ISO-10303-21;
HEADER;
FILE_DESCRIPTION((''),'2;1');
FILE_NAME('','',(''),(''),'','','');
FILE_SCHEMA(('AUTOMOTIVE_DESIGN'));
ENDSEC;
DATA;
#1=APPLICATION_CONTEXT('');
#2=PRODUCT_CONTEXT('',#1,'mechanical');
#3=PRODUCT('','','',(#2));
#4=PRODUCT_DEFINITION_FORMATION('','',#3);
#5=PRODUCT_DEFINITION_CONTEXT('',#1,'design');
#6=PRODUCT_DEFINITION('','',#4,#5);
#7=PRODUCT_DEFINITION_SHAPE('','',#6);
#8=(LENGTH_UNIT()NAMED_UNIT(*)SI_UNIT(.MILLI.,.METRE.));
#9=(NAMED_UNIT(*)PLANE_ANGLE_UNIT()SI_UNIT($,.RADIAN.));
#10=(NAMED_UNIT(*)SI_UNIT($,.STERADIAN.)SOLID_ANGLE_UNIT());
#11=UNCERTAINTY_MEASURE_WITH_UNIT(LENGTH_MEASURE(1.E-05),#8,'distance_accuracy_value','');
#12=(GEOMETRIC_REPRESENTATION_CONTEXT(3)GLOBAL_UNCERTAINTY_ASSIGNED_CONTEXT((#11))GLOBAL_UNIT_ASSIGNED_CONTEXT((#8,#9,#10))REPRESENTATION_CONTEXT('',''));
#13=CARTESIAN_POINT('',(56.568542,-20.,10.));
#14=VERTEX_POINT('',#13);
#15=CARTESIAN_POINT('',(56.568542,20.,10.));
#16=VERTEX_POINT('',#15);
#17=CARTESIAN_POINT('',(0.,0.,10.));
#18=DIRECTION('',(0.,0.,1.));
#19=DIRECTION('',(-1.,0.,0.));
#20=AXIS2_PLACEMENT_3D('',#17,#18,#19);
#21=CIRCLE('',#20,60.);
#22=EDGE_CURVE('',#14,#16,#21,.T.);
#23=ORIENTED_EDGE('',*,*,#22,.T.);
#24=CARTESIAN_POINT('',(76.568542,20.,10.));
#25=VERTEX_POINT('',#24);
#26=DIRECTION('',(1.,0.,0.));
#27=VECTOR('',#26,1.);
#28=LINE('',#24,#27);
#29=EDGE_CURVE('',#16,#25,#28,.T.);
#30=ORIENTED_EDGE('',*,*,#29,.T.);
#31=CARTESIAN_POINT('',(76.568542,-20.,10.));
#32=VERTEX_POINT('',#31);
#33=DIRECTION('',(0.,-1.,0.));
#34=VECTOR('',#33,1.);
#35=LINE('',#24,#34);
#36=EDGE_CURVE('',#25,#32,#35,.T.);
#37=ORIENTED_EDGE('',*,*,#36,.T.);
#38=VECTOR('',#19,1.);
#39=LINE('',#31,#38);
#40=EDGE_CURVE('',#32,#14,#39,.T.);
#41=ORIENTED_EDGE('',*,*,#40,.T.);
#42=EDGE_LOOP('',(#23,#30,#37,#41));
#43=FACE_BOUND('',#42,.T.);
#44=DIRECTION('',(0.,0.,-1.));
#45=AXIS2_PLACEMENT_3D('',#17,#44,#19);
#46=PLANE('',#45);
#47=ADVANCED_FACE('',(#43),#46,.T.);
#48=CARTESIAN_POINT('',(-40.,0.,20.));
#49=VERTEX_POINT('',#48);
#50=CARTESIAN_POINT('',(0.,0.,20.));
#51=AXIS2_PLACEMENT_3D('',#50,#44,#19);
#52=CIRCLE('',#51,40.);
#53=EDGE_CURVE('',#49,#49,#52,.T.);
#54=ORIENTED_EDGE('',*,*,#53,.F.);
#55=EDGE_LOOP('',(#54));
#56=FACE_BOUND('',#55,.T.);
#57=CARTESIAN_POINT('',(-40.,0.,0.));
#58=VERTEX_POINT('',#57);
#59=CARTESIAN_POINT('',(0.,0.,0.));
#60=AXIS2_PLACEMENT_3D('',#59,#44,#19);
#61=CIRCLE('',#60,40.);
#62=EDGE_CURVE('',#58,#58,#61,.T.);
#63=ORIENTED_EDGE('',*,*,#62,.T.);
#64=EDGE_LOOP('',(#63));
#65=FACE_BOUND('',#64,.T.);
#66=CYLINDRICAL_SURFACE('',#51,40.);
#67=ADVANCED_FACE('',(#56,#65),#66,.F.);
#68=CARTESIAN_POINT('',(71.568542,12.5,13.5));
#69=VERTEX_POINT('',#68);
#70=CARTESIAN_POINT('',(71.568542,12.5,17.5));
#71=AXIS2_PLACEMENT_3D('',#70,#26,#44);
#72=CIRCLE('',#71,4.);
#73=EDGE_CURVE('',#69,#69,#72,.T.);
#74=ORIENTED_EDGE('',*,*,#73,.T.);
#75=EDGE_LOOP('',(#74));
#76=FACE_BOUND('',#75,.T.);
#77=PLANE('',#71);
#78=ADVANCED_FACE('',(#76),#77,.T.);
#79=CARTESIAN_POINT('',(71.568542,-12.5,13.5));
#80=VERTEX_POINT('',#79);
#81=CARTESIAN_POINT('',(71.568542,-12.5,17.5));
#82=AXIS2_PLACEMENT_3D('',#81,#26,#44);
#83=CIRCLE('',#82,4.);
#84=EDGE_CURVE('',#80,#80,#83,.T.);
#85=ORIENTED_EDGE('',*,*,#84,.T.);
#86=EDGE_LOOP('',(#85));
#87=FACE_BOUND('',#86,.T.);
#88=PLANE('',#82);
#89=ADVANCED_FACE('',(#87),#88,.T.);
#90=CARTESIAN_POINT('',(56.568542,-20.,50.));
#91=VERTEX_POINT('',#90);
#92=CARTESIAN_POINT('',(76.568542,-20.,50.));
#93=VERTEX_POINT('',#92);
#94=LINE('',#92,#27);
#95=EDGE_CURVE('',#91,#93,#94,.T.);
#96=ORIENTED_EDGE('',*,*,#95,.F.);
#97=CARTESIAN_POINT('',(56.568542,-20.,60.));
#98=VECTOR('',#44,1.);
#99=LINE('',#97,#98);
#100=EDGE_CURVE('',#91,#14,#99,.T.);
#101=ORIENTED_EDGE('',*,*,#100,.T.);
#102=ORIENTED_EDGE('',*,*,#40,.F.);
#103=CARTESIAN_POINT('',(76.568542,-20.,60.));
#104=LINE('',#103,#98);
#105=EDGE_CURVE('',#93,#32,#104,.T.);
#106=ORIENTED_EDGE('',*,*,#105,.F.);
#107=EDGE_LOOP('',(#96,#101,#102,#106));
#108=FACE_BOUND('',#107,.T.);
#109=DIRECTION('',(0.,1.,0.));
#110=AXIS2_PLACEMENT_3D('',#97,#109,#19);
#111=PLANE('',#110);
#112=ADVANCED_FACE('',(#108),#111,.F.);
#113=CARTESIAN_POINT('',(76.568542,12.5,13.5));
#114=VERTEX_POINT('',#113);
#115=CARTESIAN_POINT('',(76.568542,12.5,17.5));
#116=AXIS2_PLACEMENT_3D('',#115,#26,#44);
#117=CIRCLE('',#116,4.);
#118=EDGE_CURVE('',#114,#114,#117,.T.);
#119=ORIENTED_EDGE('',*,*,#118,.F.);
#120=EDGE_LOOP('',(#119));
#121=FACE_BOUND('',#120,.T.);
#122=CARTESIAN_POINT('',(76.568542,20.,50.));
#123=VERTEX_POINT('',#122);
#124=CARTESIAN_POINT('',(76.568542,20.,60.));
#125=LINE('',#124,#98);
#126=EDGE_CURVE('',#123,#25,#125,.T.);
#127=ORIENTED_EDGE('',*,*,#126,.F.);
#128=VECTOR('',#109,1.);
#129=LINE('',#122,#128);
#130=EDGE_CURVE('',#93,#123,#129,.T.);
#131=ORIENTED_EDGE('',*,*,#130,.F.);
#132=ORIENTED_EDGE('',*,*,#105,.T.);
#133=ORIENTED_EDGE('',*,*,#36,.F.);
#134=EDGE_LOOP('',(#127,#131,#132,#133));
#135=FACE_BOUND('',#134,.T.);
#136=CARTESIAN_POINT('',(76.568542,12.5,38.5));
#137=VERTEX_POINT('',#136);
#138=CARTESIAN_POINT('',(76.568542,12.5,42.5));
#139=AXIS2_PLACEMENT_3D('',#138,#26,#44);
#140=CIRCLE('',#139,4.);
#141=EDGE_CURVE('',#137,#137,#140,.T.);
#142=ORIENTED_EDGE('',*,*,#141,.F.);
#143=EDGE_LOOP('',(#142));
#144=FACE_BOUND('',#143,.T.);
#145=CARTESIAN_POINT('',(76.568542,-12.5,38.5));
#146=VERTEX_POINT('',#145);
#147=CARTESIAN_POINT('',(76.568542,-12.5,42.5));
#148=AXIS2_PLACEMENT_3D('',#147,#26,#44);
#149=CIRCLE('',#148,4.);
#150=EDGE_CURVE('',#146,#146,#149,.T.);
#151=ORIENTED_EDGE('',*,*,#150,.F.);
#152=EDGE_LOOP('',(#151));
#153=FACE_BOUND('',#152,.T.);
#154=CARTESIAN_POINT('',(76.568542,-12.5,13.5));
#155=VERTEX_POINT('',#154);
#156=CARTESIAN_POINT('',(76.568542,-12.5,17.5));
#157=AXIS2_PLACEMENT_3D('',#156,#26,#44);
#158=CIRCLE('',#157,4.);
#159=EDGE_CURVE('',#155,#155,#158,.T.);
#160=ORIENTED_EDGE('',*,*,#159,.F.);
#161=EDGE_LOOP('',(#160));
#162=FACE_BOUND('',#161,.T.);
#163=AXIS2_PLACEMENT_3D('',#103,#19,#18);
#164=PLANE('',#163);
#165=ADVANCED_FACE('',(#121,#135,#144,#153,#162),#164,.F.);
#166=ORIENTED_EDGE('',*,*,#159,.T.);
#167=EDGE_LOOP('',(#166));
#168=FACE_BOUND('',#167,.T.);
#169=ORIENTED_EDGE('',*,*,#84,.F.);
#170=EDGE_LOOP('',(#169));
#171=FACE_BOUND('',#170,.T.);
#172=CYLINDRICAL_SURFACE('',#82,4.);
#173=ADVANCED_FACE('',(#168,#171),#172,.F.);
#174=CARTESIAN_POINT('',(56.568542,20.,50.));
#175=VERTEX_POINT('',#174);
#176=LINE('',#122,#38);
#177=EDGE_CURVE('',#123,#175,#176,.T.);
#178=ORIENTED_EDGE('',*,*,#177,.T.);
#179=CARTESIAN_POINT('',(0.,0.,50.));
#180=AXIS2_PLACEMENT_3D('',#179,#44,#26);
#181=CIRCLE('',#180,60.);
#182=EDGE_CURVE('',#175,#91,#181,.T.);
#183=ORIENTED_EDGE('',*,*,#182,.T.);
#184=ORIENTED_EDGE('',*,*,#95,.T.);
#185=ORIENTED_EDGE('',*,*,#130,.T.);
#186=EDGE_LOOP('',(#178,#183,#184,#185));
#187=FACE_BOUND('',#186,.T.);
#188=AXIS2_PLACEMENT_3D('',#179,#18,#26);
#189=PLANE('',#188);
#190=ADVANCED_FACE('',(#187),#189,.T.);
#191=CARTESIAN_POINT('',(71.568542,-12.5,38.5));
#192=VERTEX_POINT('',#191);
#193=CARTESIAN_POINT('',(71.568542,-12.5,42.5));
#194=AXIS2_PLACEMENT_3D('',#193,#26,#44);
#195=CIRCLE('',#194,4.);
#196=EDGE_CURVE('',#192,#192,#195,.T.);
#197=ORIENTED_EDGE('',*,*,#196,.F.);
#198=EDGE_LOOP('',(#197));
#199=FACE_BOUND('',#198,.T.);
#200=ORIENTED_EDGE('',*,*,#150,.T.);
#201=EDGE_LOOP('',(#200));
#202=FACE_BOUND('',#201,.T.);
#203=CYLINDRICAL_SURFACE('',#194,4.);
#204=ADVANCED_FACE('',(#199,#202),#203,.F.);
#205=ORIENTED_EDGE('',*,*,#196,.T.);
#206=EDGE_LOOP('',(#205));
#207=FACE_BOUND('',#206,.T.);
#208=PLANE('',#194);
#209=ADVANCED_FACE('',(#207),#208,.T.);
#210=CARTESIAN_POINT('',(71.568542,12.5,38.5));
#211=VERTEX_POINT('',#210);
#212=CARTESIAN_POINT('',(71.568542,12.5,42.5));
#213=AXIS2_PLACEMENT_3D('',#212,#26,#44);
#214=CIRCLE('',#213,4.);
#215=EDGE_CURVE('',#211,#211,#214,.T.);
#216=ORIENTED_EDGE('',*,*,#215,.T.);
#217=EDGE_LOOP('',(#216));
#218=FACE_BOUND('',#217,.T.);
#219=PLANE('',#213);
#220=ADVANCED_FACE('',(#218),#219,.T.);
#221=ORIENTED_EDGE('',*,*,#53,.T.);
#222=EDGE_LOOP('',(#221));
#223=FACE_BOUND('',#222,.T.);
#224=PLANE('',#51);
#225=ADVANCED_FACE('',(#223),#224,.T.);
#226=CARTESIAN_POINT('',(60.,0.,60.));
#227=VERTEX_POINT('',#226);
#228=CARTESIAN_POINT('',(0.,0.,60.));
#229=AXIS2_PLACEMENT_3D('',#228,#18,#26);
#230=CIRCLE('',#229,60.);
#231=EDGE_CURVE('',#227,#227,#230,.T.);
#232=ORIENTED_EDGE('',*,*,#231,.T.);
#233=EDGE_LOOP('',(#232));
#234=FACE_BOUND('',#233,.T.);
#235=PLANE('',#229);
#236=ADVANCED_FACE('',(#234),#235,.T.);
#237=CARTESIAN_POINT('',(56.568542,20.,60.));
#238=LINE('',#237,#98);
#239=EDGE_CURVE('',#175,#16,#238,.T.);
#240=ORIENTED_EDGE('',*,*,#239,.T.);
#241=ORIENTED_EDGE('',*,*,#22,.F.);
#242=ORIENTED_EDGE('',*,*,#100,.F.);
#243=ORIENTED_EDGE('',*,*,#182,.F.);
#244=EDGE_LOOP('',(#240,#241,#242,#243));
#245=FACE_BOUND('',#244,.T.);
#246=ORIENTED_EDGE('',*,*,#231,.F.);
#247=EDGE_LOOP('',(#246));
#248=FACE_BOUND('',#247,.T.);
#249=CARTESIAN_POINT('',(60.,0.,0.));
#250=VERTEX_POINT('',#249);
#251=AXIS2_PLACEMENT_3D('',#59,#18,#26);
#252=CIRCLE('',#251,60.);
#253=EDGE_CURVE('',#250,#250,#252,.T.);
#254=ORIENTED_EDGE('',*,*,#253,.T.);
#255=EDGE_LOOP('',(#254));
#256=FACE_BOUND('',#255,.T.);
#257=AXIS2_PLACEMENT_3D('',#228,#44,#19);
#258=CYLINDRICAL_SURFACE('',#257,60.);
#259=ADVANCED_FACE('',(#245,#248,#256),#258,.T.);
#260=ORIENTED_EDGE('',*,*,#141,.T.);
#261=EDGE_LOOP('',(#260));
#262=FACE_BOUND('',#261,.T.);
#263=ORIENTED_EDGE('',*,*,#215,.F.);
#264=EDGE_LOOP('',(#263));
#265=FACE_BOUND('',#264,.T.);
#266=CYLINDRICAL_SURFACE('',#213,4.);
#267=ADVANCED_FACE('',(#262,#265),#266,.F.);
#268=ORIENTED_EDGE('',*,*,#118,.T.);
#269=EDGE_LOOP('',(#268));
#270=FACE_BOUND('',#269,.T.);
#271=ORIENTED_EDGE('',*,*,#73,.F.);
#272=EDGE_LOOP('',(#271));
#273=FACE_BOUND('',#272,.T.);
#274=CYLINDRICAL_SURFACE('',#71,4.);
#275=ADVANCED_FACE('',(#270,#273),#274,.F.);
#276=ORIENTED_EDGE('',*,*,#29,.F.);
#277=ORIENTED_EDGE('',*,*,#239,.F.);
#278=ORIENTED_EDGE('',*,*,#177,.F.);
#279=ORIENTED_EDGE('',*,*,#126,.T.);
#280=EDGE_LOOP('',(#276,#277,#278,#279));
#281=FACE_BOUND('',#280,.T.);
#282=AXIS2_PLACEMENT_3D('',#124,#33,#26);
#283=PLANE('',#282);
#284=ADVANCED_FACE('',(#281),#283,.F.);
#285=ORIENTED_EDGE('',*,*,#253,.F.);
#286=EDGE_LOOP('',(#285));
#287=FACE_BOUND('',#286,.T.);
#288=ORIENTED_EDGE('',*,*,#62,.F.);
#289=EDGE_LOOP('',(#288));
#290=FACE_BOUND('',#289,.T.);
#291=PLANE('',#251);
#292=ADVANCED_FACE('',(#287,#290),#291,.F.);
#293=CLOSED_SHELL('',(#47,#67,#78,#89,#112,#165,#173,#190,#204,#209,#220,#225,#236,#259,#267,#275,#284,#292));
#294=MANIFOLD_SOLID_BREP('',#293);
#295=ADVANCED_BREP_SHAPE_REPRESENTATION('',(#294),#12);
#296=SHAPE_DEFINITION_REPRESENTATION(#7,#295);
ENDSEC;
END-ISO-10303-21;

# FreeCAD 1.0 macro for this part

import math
import FreeCAD as App
import Part
import Sketcher
from FreeCAD import Vector
Q = App.Units.Quantity

doc = App.newDocument("Part")
body = doc.addObject("PartDesign::Body", "Body")

# Sketch on XY plane
sketch1 = body.newObject("Sketcher::SketchObject", "Sketch")
sketch1.AttachmentSupport = (doc.getObject("XY_Plane"), [""])
sketch1.MapMode = "FlatFace"
sketch1.addGeometry([
    Part.LineSegment(Vector(57, -20, 0), Vector(77, -20, 0)),
    Part.LineSegment(Vector(77, -20, 0), Vector(77, 20, 0)),
    Part.LineSegment(Vector(77, 20, 0), Vector(57, 20, 0)),
    Part.ArcOfCircle(Part.Circle(Vector(0, 0, 0), Vector(0, 0, 1), 60), math.radians(19), math.radians(341)),
], False)
sketch1.addConstraint([
    Sketcher.Constraint("Coincident", 0, 2, 1, 1),
    Sketcher.Constraint("Coincident", 1, 2, 2, 1),
    Sketcher.Constraint("Coincident", 2, 2, 3, 1),
    Sketcher.Constraint("Coincident", 3, 2, 0, 1),
    Sketcher.Constraint("Horizontal", 0),
    Sketcher.Constraint("Vertical", 1),
    Sketcher.Constraint("Horizontal", 2),
    Sketcher.Constraint("Coincident", 3, 3, -1, 1),
    Sketcher.Constraint("Vertical", 2, 2, 3, 2),
    Sketcher.Constraint("Radius", 3, Q("60 mm")),
    Sketcher.Constraint("DistanceX", 0, 1, 0, 2, Q("20 mm")),
    Sketcher.Constraint("DistanceY", 1, 1, 1, 2, Q("40 mm")),
])
pad1 = body.newObject("PartDesign::Pad", "Pad")
pad1.Profile = sketch1
pad1.Length = 60

# Sketch on XY plane
sketch2 = body.newObject("Sketcher::SketchObject", "Sketch001")
sketch2.AttachmentSupport = (doc.getObject("XY_Plane"), [""])
sketch2.MapMode = "FlatFace"
sketch2.addGeometry([
    Part.LineSegment(Vector(77, 20, 0), Vector(77, -20, 0)),
    Part.LineSegment(Vector(77, -20, 0), Vector(57, -20, 0)),
    Part.ArcOfCircle(Part.Circle(Vector(0, 0, 0), Vector(0, 0, 1), 60), math.radians(-19), math.radians(19)),
    Part.LineSegment(Vector(57, 20, 0), Vector(77, 20, 0)),
], False)
sketch2.addConstraint([
    Sketcher.Constraint("Coincident", 0, 2, 1, 1),
    Sketcher.Constraint("Coincident", 1, 2, 2, 1),
    Sketcher.Constraint("Coincident", 2, 2, 3, 1),
    Sketcher.Constraint("Coincident", 3, 2, 0, 1),
    Sketcher.Constraint("Vertical", 0),
    Sketcher.Constraint("Horizontal", 1),
    Sketcher.Constraint("Horizontal", 3),
    Sketcher.Constraint("Coincident", 2, 3, -1, 1),
    Sketcher.Constraint("Vertical", 1, 2, 2, 2),
    Sketcher.Constraint("Radius", 2, Q("60 mm")),
    Sketcher.Constraint("DistanceX", 1, 2, 1, 1, Q("20 mm")),
    Sketcher.Constraint("DistanceY", 0, 2, 0, 1, Q("40 mm")),
])
pocket1 = body.newObject("PartDesign::Pocket", "Pocket")
pocket1.Profile = sketch2
pocket1.Length = 10
pocket1.Reversed = True

# Sketch on XY plane
sketch3 = body.newObject("Sketcher::SketchObject", "Sketch002")
sketch3.AttachmentSupport = (doc.getObject("XY_Plane"), [""])
sketch3.MapMode = "FlatFace"
sketch3.AttachmentOffset = App.Placement(Vector(0, 0, 60), App.Rotation())
sketch3.addGeometry([
    Part.LineSegment(Vector(77, -20, 0), Vector(77, 20, 0)),
    Part.LineSegment(Vector(77, 20, 0), Vector(57, 20, 0)),
    Part.ArcOfCircle(Part.Circle(Vector(0, 0, 0), Vector(0, 0, 1), 60), math.radians(-19), math.radians(19)),
    Part.LineSegment(Vector(57, -20, 0), Vector(77, -20, 0)),
], False)
sketch3.addConstraint([
    Sketcher.Constraint("Coincident", 0, 2, 1, 1),
    Sketcher.Constraint("Coincident", 1, 2, 2, 2),
    Sketcher.Constraint("Coincident", 2, 1, 3, 1),
    Sketcher.Constraint("Coincident", 3, 2, 0, 1),
    Sketcher.Constraint("Vertical", 0),
    Sketcher.Constraint("Horizontal", 1),
    Sketcher.Constraint("Horizontal", 3),
    Sketcher.Constraint("Coincident", 2, 3, -1, 1),
    Sketcher.Constraint("Vertical", 1, 2, 2, 1),
    Sketcher.Constraint("Radius", 2, Q("60 mm")),
    Sketcher.Constraint("DistanceX", 1, 2, 1, 1, Q("20 mm")),
    Sketcher.Constraint("DistanceY", 0, 1, 0, 2, Q("40 mm")),
])
pocket2 = body.newObject("PartDesign::Pocket", "Pocket001")
pocket2.Profile = sketch3
pocket2.Length = 10

# Sketch on XY plane
sketch4 = body.newObject("Sketcher::SketchObject", "Sketch003")
sketch4.AttachmentSupport = (doc.getObject("XY_Plane"), [""])
sketch4.MapMode = "FlatFace"
sketch4.addGeometry(Part.Circle(Vector(0, 0, 0), Vector(0, 0, 1), 40), False)
sketch4.addConstraint([
    Sketcher.Constraint("Coincident", 0, 3, -1, 1),
    Sketcher.Constraint("Diameter", 0, Q("80 mm")),
])
pocket3 = body.newObject("PartDesign::Pocket", "Pocket002")
pocket3.Profile = sketch4
pocket3.Length = 20
pocket3.Reversed = True

# Sketch on YZ plane
sketch5 = body.newObject("Sketcher::SketchObject", "Sketch004")
sketch5.AttachmentSupport = (doc.getObject("YZ_Plane"), [""])
sketch5.MapMode = "FlatFace"
sketch5.AttachmentOffset = App.Placement(Vector(0, 0, 76.568542), App.Rotation())
sketch5.addGeometry([
    Part.Circle(Vector(12.5, 17.5, 0), Vector(0, 0, 1), 4),
    Part.Circle(Vector(-12.5, 17.5, 0), Vector(0, 0, 1), 4),
    Part.Circle(Vector(-12.5, 42.5, 0), Vector(0, 0, 1), 4),
    Part.Circle(Vector(12.5, 42.5, 0), Vector(0, 0, 1), 4),
], False)
sketch5.addConstraint([
    Sketcher.Constraint("Equal", 0, 1),
    Sketcher.Constraint("Equal", 1, 2),
    Sketcher.Constraint("Equal", 2, 3),
    Sketcher.Constraint("Symmetric", 0, 3, 1, 3, -2),
    Sketcher.Constraint("Symmetric", 2, 3, 3, 3, -2),
    Sketcher.Constraint("Vertical", 1, 3, 2, 3),
    Sketcher.Constraint("Diameter", 0, Q("8 mm")),
    Sketcher.Constraint("DistanceX", 1, 3, 0, 3, Q("25 mm")),
    Sketcher.Constraint("DistanceY", 1, 3, 2, 3, Q("25 mm")),
    Sketcher.Constraint("DistanceY", -1, 1, 0, 3, Q("17.5 mm")),
])
pocket4 = body.newObject("PartDesign::Pocket", "Pocket003")
pocket4.Profile = sketch5
pocket4.Length = 5

doc.recompute()
